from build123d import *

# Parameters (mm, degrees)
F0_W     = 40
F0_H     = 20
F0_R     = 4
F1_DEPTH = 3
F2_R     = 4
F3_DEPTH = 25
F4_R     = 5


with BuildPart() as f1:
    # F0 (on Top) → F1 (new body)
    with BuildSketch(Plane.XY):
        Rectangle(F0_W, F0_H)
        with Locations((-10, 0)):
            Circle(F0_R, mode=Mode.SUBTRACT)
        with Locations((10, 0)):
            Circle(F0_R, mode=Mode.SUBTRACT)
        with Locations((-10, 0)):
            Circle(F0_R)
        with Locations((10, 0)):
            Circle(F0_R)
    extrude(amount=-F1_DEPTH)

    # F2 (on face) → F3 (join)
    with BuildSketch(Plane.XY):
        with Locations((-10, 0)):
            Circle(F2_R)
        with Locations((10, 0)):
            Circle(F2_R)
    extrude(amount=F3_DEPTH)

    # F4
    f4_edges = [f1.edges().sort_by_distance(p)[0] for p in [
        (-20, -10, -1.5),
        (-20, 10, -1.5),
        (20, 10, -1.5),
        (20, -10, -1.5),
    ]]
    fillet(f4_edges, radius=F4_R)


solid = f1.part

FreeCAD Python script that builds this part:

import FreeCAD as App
import Part
import Sketcher

V = App.Vector
Q = App.Units.Quantity


def edges_at(feature, points):
    """Names of the edges that pass closest to the given points."""
    edges = feature.Shape.Edges
    near = lambda p: min(range(len(edges)), key=lambda i: edges[i].distToShape(Part.Vertex(*p))[0])
    return sorted({f"Edge{near(p) + 1}" for p in points})

doc = App.newDocument("Part")
body = doc.addObject("PartDesign::Body", "Body")

# Sketch on XY plane
sketch1 = body.newObject("Sketcher::SketchObject", "Sketch")
sketch1.AttachmentSupport = (doc.getObject("XY_Plane"), [""])
sketch1.MapMode = "FlatFace"
sketch1.addGeometry([
    Part.LineSegment(V(-20, 10, 0), V(-20, -10, 0)),
    Part.LineSegment(V(-20, -10, 0), V(20, -10, 0)),
    Part.LineSegment(V(20, -10, 0), V(20, 10, 0)),
    Part.LineSegment(V(20, 10, 0), V(-20, 10, 0)),
], False)
sketch1.addConstraint([
    Sketcher.Constraint("Coincident", 0, 2, 1, 1),
    Sketcher.Constraint("Coincident", 1, 2, 2, 1),
    Sketcher.Constraint("Coincident", 2, 2, 3, 1),
    Sketcher.Constraint("Coincident", 3, 2, 0, 1),
    Sketcher.Constraint("Vertical", 0),
    Sketcher.Constraint("Horizontal", 1),
    Sketcher.Constraint("Vertical", 2),
    Sketcher.Constraint("Horizontal", 3),
    Sketcher.Constraint("Symmetric", 0, 2, 2, 2, -1, 1),
    Sketcher.Constraint("DistanceX", 1, 1, 1, 2, Q("40 mm")),
    Sketcher.Constraint("DistanceY", 0, 2, 0, 1, Q("20 mm")),
])
pad1 = body.newObject("PartDesign::Pad", "Pad")
pad1.Profile = sketch1
pad1.Length = 3
pad1.Reversed = True

# Sketch on XY plane
sketch2 = body.newObject("Sketcher::SketchObject", "Sketch001")
sketch2.AttachmentSupport = (doc.getObject("XY_Plane"), [""])
sketch2.MapMode = "FlatFace"
sketch2.addGeometry([
    Part.Circle(V(-10, 0, 0), V(0, 0, 1), 4),
    Part.Circle(V(10, 0, 0), V(0, 0, 1), 4),
], False)
sketch2.addConstraint([
    Sketcher.Constraint("Equal", 0, 1),
    Sketcher.Constraint("Symmetric", 0, 3, 1, 3, -1, 1),
    Sketcher.Constraint("PointOnObject", 0, 3, -1),
    Sketcher.Constraint("Diameter", 0, Q("8 mm")),
    Sketcher.Constraint("DistanceX", 0, 3, -1, 1, Q("10 mm")),
])
pad2 = body.newObject("PartDesign::Pad", "Pad001")
pad2.Profile = sketch2
pad2.Length = 25
doc.recompute()

fillet = body.newObject("PartDesign::Fillet", "Fillet")
fillet.Base = (pad2, edges_at(pad2, [
    (-20, -10, -1.5),
    (-20, 10, -1.5),
    (20, 10, -1.5),
    (20, -10, -1.5),
]))
fillet.Radius = 5

doc.recompute()
